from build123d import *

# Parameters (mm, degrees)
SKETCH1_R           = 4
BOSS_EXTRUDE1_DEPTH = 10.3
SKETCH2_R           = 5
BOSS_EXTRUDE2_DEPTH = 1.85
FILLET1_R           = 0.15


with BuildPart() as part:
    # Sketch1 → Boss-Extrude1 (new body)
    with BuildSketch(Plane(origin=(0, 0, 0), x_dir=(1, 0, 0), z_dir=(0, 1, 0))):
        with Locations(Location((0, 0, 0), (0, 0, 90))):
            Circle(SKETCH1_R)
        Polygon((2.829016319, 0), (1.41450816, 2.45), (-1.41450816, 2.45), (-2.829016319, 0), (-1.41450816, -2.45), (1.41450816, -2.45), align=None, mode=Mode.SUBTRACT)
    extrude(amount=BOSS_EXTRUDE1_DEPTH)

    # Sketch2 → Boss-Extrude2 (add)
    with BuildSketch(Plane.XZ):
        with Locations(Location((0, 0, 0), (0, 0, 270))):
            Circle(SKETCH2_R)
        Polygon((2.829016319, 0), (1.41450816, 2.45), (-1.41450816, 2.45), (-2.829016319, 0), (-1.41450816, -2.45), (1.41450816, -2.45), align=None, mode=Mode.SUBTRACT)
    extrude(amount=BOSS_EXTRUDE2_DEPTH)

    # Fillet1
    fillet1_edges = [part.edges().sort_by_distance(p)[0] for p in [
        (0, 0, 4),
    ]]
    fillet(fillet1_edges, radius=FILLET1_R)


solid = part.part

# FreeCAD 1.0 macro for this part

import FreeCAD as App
import Part
import Sketcher
Q = App.Units.Quantity


def edges_at(feature, points):
    """Names of the edges that pass closest to the given points."""
    edges = feature.Shape.Edges
    near = lambda p: min(range(len(edges)), key=lambda i: edges[i].distToShape(Part.Vertex(*p))[0])
    return sorted({f"Edge{near(p) + 1}" for p in points})


def add_polygon(sketch, points):
    """Adds a closed chain of lines whose ends are joined by coincident constraints."""
    first, n = sketch.GeometryCount, len(points)
    for a, b in zip(points, points[1:] + points[:1]):
        sketch.addGeometry(Part.LineSegment(App.Vector(*a, 0), App.Vector(*b, 0)), False)
    for i in range(n):
        sketch.addConstraint(Sketcher.Constraint("Coincident", first + i, 2, first + (i + 1) % n, 1))

doc = App.newDocument("Part")
body = doc.addObject("PartDesign::Body", "Body")

sketch1 = body.newObject("Sketcher::SketchObject", "Sketch")
sketch1.AttachmentSupport = (doc.getObject("XZ_Plane"), [""])
sketch1.MapMode = "FlatFace"
sketch1.addGeometry(Part.Circle(App.Vector(0, 0, 0), App.Vector(0, 0, 1), 4), False)
add_polygon(sketch1, [(1.4, -2.5), (2.8, 0), (1.4, 2.5), (-1.4, 2.5), (-2.8, 0), (-1.4, -2.5)])
sketch1.addConstraint([
    Sketcher.Constraint("Horizontal", 3),
    Sketcher.Constraint("Horizontal", 6),
    Sketcher.Constraint("Coincident", 0, 3, -1, 1),
    Sketcher.Constraint("Symmetric", 1, 2, 4, 2, -1, 1),
    Sketcher.Constraint("Symmetric", 2, 2, 5, 2, -1, 1),
    Sketcher.Constraint("PointOnObject", 1, 2, -1),
    Sketcher.Constraint("Parallel", 1, 4),
    Sketcher.Constraint("Vertical", 3, 2, 5, 2),
    Sketcher.Constraint("Diameter", 0, Q("8 mm")),
    Sketcher.Constraint("Angle", 1, Q("60 deg")),
    Sketcher.Constraint("DistanceY", 5, 2, 3, 2, Q("4.9 mm")),
    Sketcher.Constraint("DistanceX", 3, 2, 3, 1, Q("2.829016 mm")),
])
pad1 = body.newObject("PartDesign::Pad", "Pad")
pad1.Profile = sketch1
pad1.Length = 10.3
pad1.Reversed = True

sketch2 = body.newObject("Sketcher::SketchObject", "Sketch001")
sketch2.AttachmentSupport = (doc.getObject("XZ_Plane"), [""])
sketch2.MapMode = "FlatFace"
sketch2.addGeometry(Part.Circle(App.Vector(0, 0, 0), App.Vector(0, 0, 1), 5), False)
add_polygon(sketch2, [(1.4, 2.5), (2.8, 0), (1.4, -2.5), (-1.4, -2.5), (-2.8, 0), (-1.4, 2.5)])
sketch2.addConstraint([
    Sketcher.Constraint("Horizontal", 3),
    Sketcher.Constraint("Horizontal", 6),
    Sketcher.Constraint("Coincident", 0, 3, -1, 1),
    Sketcher.Constraint("Symmetric", 1, 2, 4, 2, -1, 1),
    Sketcher.Constraint("Symmetric", 2, 2, 5, 2, -1, 1),
    Sketcher.Constraint("PointOnObject", 1, 2, -1),
    Sketcher.Constraint("Parallel", 1, 4),
    Sketcher.Constraint("Vertical", 3, 2, 5, 2),
    Sketcher.Constraint("Diameter", 0, Q("10 mm")),
    Sketcher.Constraint("Angle", 1, Q("-60 deg")),
    Sketcher.Constraint("DistanceY", 3, 2, 5, 2, Q("4.9 mm")),
    Sketcher.Constraint("DistanceX", 3, 2, 3, 1, Q("2.829016 mm")),
])
pad2 = body.newObject("PartDesign::Pad", "Pad001")
pad2.Profile = sketch2
pad2.Length = 1.85
doc.recompute()

fillet = body.newObject("PartDesign::Fillet", "Fillet")
fillet.Base = (pad2, edges_at(pad2, [(0, 0, 4)]))
fillet.Radius = 0.15

doc.recompute()
